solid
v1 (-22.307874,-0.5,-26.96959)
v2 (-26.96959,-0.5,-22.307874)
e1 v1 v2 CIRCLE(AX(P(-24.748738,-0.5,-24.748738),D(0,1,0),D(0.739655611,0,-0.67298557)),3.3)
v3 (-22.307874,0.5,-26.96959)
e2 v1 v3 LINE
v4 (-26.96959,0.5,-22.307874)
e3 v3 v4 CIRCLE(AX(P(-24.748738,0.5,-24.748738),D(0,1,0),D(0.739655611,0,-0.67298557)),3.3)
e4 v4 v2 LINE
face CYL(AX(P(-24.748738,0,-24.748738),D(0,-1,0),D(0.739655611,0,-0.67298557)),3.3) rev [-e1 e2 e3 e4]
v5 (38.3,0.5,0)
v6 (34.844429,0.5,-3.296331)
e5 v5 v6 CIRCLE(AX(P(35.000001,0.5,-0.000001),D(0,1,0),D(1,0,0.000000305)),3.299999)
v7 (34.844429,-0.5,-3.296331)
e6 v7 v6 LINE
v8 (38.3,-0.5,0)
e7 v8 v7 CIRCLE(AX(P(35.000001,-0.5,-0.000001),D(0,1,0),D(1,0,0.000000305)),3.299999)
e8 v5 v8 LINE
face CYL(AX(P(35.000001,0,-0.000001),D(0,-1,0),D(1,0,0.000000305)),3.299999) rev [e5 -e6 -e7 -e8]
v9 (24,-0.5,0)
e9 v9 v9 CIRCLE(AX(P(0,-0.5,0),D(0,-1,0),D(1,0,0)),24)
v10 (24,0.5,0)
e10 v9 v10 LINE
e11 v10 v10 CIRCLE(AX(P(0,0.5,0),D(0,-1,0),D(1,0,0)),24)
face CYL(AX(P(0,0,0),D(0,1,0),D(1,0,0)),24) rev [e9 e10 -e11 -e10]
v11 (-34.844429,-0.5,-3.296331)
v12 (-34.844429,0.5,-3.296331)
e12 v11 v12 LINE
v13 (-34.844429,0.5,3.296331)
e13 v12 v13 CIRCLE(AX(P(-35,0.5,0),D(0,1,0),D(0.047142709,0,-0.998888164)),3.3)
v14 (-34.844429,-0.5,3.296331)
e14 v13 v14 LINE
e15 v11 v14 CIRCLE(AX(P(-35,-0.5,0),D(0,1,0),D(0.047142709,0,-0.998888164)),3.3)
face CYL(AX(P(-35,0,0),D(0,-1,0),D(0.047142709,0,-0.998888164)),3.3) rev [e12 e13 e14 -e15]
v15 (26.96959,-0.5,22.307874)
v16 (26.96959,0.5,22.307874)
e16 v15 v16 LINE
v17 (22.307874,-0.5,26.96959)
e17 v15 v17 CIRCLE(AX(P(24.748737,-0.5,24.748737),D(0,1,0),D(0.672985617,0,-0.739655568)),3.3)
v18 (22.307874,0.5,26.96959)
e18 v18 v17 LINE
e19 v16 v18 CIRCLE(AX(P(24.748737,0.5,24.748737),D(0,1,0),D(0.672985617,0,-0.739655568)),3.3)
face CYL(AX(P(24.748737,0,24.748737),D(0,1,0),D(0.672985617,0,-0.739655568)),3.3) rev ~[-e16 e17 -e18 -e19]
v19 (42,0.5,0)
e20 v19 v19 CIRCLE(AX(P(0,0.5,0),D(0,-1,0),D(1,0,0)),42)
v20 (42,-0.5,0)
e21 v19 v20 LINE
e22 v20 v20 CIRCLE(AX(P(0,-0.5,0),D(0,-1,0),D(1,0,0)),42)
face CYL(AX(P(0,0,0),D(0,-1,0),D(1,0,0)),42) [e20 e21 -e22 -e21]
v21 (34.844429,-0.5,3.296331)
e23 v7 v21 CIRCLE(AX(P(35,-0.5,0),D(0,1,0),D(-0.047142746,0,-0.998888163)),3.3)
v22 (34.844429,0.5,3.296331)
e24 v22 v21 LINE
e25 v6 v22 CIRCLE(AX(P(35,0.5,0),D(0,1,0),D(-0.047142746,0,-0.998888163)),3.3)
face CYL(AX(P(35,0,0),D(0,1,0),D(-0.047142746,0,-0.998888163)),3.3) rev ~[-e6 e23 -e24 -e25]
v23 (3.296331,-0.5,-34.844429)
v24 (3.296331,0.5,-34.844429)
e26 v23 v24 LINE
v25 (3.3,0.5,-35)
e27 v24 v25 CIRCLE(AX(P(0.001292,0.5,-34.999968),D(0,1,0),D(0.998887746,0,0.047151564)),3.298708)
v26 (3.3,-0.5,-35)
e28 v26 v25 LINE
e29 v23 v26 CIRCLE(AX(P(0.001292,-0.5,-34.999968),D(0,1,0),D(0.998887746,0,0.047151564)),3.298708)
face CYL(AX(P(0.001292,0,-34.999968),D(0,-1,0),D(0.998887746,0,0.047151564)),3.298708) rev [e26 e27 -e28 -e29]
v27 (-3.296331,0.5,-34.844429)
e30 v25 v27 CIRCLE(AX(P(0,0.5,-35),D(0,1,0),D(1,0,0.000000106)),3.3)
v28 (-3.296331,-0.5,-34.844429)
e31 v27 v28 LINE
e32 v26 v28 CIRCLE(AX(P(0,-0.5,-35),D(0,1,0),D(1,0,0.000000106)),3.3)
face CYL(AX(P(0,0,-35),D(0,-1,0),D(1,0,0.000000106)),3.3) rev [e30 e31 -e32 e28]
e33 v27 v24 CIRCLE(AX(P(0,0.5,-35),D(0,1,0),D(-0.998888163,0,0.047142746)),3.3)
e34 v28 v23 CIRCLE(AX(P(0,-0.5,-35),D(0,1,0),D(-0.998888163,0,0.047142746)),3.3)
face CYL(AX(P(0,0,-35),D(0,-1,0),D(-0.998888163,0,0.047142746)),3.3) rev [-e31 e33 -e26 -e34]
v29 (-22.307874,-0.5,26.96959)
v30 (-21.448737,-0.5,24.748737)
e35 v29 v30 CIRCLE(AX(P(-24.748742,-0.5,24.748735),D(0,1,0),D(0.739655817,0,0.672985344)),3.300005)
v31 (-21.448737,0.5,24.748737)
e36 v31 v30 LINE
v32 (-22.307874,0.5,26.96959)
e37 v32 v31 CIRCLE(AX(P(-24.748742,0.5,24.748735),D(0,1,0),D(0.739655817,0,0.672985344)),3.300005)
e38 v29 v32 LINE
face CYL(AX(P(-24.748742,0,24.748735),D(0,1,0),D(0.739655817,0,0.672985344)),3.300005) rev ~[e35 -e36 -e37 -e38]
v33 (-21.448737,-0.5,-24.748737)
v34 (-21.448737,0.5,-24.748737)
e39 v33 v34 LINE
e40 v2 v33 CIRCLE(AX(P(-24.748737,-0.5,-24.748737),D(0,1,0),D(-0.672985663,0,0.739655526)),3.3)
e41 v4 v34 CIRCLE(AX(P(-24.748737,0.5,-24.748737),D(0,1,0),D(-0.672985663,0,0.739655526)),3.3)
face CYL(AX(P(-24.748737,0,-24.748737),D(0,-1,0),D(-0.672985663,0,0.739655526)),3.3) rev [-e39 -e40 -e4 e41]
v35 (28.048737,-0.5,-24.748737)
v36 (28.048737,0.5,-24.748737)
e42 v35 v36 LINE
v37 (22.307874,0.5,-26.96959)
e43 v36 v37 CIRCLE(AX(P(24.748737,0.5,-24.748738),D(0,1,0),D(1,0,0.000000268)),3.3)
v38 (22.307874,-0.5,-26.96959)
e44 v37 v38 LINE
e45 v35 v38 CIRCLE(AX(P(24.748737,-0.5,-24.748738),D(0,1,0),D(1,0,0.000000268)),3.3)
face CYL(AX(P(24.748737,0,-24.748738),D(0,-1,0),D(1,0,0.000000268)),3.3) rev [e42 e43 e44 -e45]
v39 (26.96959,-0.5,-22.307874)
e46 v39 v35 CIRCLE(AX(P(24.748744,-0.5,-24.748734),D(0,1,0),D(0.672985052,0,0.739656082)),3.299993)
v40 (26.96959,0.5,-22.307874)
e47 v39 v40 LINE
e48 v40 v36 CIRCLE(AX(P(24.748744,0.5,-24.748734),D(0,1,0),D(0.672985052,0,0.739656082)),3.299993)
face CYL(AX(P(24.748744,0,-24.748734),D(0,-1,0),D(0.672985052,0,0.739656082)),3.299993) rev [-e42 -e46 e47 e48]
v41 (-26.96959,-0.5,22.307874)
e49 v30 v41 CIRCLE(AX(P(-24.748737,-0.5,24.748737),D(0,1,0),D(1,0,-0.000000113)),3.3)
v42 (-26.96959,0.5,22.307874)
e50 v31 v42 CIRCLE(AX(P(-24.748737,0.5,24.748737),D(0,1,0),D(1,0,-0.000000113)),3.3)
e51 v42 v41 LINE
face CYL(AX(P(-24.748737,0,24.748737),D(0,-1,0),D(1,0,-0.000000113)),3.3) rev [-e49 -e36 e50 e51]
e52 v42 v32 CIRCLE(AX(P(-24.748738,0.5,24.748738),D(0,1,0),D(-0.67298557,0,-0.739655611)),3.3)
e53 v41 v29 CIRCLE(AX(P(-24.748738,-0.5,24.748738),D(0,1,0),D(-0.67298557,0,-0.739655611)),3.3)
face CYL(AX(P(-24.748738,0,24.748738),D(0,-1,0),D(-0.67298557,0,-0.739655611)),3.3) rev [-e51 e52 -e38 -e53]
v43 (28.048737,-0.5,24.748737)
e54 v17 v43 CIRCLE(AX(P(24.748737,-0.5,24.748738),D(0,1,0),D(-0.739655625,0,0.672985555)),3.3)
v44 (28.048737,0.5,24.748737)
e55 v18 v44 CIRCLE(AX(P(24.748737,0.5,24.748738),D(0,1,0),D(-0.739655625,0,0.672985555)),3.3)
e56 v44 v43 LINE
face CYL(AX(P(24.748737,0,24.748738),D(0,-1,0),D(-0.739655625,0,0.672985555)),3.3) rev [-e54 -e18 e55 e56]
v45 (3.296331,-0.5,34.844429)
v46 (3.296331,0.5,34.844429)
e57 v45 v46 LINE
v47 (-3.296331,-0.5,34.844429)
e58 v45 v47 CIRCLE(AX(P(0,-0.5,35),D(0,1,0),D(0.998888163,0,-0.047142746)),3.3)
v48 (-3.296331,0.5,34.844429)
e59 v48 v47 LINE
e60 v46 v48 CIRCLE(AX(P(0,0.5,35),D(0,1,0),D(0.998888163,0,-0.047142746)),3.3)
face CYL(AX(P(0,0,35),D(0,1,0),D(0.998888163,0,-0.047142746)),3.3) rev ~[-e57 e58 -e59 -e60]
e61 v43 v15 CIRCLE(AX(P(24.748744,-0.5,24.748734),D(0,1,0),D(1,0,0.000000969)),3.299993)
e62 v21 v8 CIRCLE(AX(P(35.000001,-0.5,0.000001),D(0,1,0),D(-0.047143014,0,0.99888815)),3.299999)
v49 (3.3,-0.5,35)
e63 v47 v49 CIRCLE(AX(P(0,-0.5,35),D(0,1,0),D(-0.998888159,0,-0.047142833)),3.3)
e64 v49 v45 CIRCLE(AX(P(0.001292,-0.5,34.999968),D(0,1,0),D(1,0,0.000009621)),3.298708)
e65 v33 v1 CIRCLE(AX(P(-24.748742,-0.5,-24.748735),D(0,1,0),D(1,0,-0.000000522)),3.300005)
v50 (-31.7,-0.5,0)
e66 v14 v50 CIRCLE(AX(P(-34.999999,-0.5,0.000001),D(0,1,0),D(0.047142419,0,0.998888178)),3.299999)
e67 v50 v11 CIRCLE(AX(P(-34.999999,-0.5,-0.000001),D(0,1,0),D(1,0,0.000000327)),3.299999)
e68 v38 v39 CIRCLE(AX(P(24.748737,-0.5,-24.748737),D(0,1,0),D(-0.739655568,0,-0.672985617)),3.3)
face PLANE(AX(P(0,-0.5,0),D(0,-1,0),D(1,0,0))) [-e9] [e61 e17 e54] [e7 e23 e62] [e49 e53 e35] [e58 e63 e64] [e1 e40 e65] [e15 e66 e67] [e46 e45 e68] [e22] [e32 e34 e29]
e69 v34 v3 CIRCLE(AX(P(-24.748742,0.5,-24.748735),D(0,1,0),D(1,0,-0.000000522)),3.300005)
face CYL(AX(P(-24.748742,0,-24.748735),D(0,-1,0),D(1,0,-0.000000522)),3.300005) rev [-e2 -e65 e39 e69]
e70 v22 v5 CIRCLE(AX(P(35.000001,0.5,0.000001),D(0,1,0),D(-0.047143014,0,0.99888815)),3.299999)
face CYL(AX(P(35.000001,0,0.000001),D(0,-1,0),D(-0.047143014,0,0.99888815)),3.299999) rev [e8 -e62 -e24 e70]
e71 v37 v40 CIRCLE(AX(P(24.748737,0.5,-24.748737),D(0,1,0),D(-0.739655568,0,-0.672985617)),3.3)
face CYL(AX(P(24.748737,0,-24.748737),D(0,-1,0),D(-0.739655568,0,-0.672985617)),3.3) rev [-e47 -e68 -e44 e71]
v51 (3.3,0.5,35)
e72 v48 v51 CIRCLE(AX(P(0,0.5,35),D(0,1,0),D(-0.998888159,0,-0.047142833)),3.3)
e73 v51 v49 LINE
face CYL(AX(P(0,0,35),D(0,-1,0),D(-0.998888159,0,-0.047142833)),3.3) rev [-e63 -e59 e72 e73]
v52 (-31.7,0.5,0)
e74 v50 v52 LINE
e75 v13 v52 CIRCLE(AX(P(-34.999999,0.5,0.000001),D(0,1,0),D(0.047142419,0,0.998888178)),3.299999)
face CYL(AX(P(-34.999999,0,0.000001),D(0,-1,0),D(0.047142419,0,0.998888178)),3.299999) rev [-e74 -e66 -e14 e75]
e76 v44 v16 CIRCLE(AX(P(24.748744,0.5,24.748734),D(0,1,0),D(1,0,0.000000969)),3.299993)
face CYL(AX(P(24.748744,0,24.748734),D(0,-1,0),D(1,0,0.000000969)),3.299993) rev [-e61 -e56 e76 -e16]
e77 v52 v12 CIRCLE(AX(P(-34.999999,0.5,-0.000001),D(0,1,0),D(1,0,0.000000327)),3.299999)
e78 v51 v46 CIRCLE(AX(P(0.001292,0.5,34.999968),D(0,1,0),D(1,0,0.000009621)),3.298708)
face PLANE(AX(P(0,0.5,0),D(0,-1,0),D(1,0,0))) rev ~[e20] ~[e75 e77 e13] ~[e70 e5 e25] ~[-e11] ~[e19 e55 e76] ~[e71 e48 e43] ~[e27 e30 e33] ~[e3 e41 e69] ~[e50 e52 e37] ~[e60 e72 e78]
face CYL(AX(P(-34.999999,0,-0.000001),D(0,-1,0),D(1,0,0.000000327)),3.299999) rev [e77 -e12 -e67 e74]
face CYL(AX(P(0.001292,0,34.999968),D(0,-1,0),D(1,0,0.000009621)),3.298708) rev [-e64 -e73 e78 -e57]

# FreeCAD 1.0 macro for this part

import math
import FreeCAD as App
import Part
import Sketcher

V = App.Vector

doc = App.newDocument("Part")
body = doc.addObject("PartDesign::Body", "Body")

sketch1 = doc.addObject("Sketcher::SketchObject", "Sketch")
body.addObject(sketch1)
sketch1.AttachmentSupport = (doc.XZ_Plane, [""])
sketch1.MapMode = "FlatFace"
sketch1.addGeometry([
    Part.Circle(V(0, 0, 0), V(0, 0, 1), 42),
    Part.ArcOfCircle(Part.Circle(V(-24.748738, -24.748738, 0), V(0, 0, 1), 3.3), math.radians(132.297913), math.radians(317.702087)),
    Part.ArcOfCircle(Part.Circle(V(-24.748737, -24.748737, 0), V(0, 0, 1), 3.3), math.radians(0.000006), math.radians(132.29792)),
    Part.ArcOfCircle(Part.Circle(V(-24.748742, -24.748735, 0), V(0, 0, 1), 3.300005), math.radians(-42.297895), math.radians(-0.00003)),
    Part.ArcOfCircle(Part.Circle(V(0, -35, 0), V(0, 0, 1), 3.3), math.radians(177.297913), math.radians(360.000006)),
    Part.ArcOfCircle(Part.Circle(V(0, -35, 0), V(0, 0, 1), 3.3), math.radians(2.702082), math.radians(177.297918)),
    Part.ArcOfCircle(Part.Circle(V(0.001292, -34.999968, 0), V(0, 0, 1), 3.298708), math.radians(-0.000551), math.radians(2.702588)),
    Part.ArcOfCircle(Part.Circle(V(24.748737, -24.748738, 0), V(0, 0, 1), 3.3), math.radians(-137.702088), math.radians(0.000015)),
    Part.ArcOfCircle(Part.Circle(V(24.748737, -24.748737, 0), V(0, 0, 1), 3.3), math.radians(47.702084), math.radians(222.297916)),
    Part.ArcOfCircle(Part.Circle(V(24.748744, -24.748734, 0), V(0, 0, 1), 3.299993), math.radians(-0.000055), math.radians(47.702127)),
    Part.ArcOfCircle(Part.Circle(V(-35, 0, 0), V(0, 0, 1), 3.3), math.radians(87.29792), math.radians(272.70208)),
    Part.ArcOfCircle(Part.Circle(V(-34.999999, 0.000001, 0), V(0, 0, 1), 3.299999), math.radians(-0.000019), math.radians(87.297937)),
    Part.ArcOfCircle(Part.Circle(V(-34.999999, -0.000001, 0), V(0, 0, 1), 3.299999), math.radians(-87.297937), math.radians(0.000019)),
    Part.Circle(V(0, 0, 0), V(0, 0, 1), 24),
    Part.ArcOfCircle(Part.Circle(V(-24.748738, 24.748738, 0), V(0, 0, 1), 3.3), math.radians(42.297913), math.radians(227.702087)),
    Part.ArcOfCircle(Part.Circle(V(-24.748742, 24.748735, 0), V(0, 0, 1), 3.300005), math.radians(0.00003), math.radians(42.297895)),
    Part.ArcOfCircle(Part.Circle(V(-24.748737, 24.748737, 0), V(0, 0, 1), 3.3), math.radians(-132.29792), math.radians(-0.000006)),
    Part.ArcOfCircle(Part.Circle(V(0.001292, 34.999968, 0), V(0, 0, 1), 3.298708), math.radians(-2.702588), math.radians(0.000551)),
    Part.ArcOfCircle(Part.Circle(V(0, 35, 0), V(0, 0, 1), 3.3), math.radians(-177.297918), math.radians(-2.702082)),
    Part.ArcOfCircle(Part.Circle(V(0, 35, 0), V(0, 0, 1), 3.3), math.radians(-0.000006), math.radians(182.702087)),
    Part.ArcOfCircle(Part.Circle(V(35.000001, -0.000001, 0), V(0, 0, 1), 3.299999), math.radians(-92.702097), math.radians(0.000018)),
    Part.ArcOfCircle(Part.Circle(V(35, 0, 0), V(0, 0, 1), 3.3), math.radians(92.702082), math.radians(267.297918)),
    Part.ArcOfCircle(Part.Circle(V(35.000001, 0.000001, 0), V(0, 0, 1), 3.299999), math.radians(-0.000018), math.radians(92.702097)),
    Part.ArcOfCircle(Part.Circle(V(24.748744, 24.748734, 0), V(0, 0, 1), 3.299993), math.radians(-47.702127), math.radians(0.000055)),
    Part.ArcOfCircle(Part.Circle(V(24.748737, 24.748737, 0), V(0, 0, 1), 3.3), math.radians(137.702084), math.radians(312.297916)),
    Part.ArcOfCircle(Part.Circle(V(24.748737, 24.748738, 0), V(0, 0, 1), 3.3), math.radians(-0.000015), math.radians(137.702088)),
], False)
sketch1.addConstraint([
    Sketcher.Constraint("Tangent", 1, 1, 2, 2),
    Sketcher.Constraint("Tangent", 2, 1, 3, 2),
    Sketcher.Constraint("Tangent", 3, 1, 1, 2),
    Sketcher.Constraint("Tangent", 4, 1, 5, 2),
    Sketcher.Constraint("Coincident", 5, 1, 6, 2),
    Sketcher.Constraint("Coincident", 6, 1, 4, 2),
    Sketcher.Constraint("Tangent", 7, 1, 8, 2),
    Sketcher.Constraint("Tangent", 8, 1, 9, 2),
    Sketcher.Constraint("Tangent", 9, 1, 7, 2),
    Sketcher.Constraint("Tangent", 10, 1, 11, 2),
    Sketcher.Constraint("Tangent", 11, 1, 12, 2),
    Sketcher.Constraint("Tangent", 12, 1, 10, 2),
    Sketcher.Constraint("Tangent", 14, 1, 15, 2),
    Sketcher.Constraint("Tangent", 15, 1, 16, 2),
    Sketcher.Constraint("Tangent", 16, 1, 14, 2),
    Sketcher.Constraint("Coincident", 17, 1, 18, 2),
    Sketcher.Constraint("Tangent", 18, 1, 19, 2),
    Sketcher.Constraint("Coincident", 19, 1, 17, 2),
    Sketcher.Constraint("Tangent", 20, 1, 21, 2),
    Sketcher.Constraint("Tangent", 21, 1, 22, 2),
    Sketcher.Constraint("Tangent", 22, 1, 20, 2),
    Sketcher.Constraint("Tangent", 23, 1, 24, 2),
    Sketcher.Constraint("Tangent", 24, 1, 25, 2),
    Sketcher.Constraint("Tangent", 25, 1, 23, 2),
    Sketcher.Constraint("Coincident", 0, 3, -1, 1),
    Sketcher.Constraint("Coincident", 13, 3, -1, 1),
    Sketcher.Constraint("Equal", 2, 4),
    Sketcher.Constraint("Equal", 4, 5),
    Sketcher.Constraint("Equal", 5, 7),
    Sketcher.Constraint("Equal", 8, 10),
    Sketcher.Constraint("Equal", 12, 14),
    Sketcher.Constraint("Equal", 6, 17),
    Sketcher.Constraint("Equal", 16, 18),
    Sketcher.Constraint("Equal", 18, 19),
    Sketcher.Constraint("Equal", 19, 20),
    Sketcher.Constraint("Equal", 9, 23),
    Sketcher.Constraint("Symmetric", 7, 3, 14, 3, -1, 1),
    Sketcher.Constraint("Symmetric", 4, 3, 18, 3, -1, 1),
    Sketcher.Constraint("Symmetric", 10, 3, 20, 3, -1, 1),
    Sketcher.Constraint("Symmetric", 1, 3, 23, 3, -1, 1),
    Sketcher.Constraint("Symmetric", 1, 3, 7, 3, -2),
    Sketcher.Constraint("Symmetric", 4, 1, 5, 1, -2),
    Sketcher.Constraint("Symmetric", 12, 1, 20, 1, -2),
    Sketcher.Constraint("PointOnObject", 11, 1, -1),
    Sketcher.Constraint("PointOnObject", 22, 1, -1),
    Sketcher.Constraint("Horizontal", 8, 3, 2, 1),
    Sketcher.Constraint("Horizontal", 5, 3, 6, 1),
    Sketcher.Constraint("Horizontal", 3, 1, 7, 1),
    Sketcher.Constraint("Horizontal", 1, 1, 8, 1),
    Sketcher.Constraint("Horizontal", 2, 1, 9, 1),
    Sketcher.Constraint("Horizontal", 25, 3, 15, 1),
    Sketcher.Constraint("Horizontal", 17, 1, 18, 1),
    Sketcher.Constraint("Horizontal", 18, 3, 19, 1),
    Sketcher.Constraint("Horizontal", 10, 1, 21, 1),
    Sketcher.Constraint("Horizontal", 16, 1, 23, 1),
    Sketcher.Constraint("Horizontal", 14, 1, 24, 1),
    Sketcher.Constraint("Horizontal", 15, 1, 25, 1),
    Sketcher.Constraint("Vertical", 10, 1, 12, 1),
    Sketcher.Constraint("Vertical", 3, 1, 14, 1),
    Sketcher.Constraint("Vertical", 1, 1, 16, 1),
    Sketcher.Constraint("Vertical", 5, 1, 17, 1),
    Sketcher.Constraint("Diameter", 0, 84.0),
    Sketcher.Constraint("Diameter", 13, 48.0),
    Sketcher.Constraint("Radius", 1, 3.3),
    Sketcher.Constraint("DistanceY", 4, 3, -1, 1, 35.0),
    Sketcher.Constraint("DistanceX", 10, 3, -1, 1, 35.0),
    Sketcher.Constraint("Radius", 6, 3.298708),
    Sketcher.Constraint("DistanceX", 3, 3, -1, 1, 24.748742),
    Sketcher.Constraint("DistanceX", 1, 1, -1, 1, 26.96959),
    Sketcher.Constraint("DistanceY", 3, 1, -1, 1, 26.96959),
    Sketcher.Constraint("DistanceX", 4, 1, -1, 1, 3.296331),
    Sketcher.Constraint("DistanceX", 10, 1, -1, 1, 34.844429),
    Sketcher.Constraint("DistanceY", 6, 3, 2, 3, 10.251231),
])
pad1 = doc.addObject("PartDesign::Pad", "Pad")
body.addObject(pad1)
pad1.Profile = sketch1
pad1.Length = 1
pad1.Midplane = True

doc.recompute()
